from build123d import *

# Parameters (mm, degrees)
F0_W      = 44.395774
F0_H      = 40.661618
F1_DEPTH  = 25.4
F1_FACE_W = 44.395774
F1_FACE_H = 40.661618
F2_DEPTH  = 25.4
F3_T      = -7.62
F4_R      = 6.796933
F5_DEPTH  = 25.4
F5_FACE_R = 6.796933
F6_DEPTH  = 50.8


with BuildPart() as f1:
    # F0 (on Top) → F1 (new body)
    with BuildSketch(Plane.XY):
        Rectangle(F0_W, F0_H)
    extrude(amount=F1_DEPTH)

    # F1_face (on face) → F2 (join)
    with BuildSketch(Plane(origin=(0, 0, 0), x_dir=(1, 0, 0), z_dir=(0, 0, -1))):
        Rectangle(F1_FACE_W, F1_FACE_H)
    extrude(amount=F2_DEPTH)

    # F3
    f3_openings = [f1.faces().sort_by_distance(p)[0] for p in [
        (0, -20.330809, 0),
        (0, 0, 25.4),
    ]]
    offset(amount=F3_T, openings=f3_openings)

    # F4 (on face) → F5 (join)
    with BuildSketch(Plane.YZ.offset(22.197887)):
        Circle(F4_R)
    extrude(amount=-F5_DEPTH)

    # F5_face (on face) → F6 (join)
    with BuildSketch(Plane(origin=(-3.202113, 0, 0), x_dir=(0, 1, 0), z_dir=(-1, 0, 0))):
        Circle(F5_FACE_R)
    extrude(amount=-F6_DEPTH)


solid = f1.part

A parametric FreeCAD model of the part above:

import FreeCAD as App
import Part
import Sketcher
from FreeCAD import Vector
Q = App.Units.Quantity


def faces_at(feature, points):
    """Names of the faces that lie closest to the given points."""
    faces = feature.Shape.Faces
    near = lambda p: min(range(len(faces)), key=lambda i: faces[i].distToShape(Part.Vertex(*p))[0])
    return sorted({f"Face{near(p) + 1}" for p in points})

doc = App.newDocument("Part")
body = doc.addObject("PartDesign::Body", "Body")

# Sketch on XY plane
sketch1 = doc.addObject("Sketcher::SketchObject", "Sketch")
body.addObject(sketch1)
sketch1.AttachmentSupport = (doc.XY_Plane, [""])
sketch1.MapMode = "FlatFace"
sketch1.addGeometry([
    Part.LineSegment(Vector(-22, 20, 0), Vector(-22, -20, 0)),
    Part.LineSegment(Vector(-22, -20, 0), Vector(22, -20, 0)),
    Part.LineSegment(Vector(22, -20, 0), Vector(22, 20, 0)),
    Part.LineSegment(Vector(22, 20, 0), Vector(-22, 20, 0)),
], False)
sketch1.addConstraint([
    Sketcher.Constraint("Coincident", 0, 2, 1, 1),
    Sketcher.Constraint("Coincident", 1, 2, 2, 1),
    Sketcher.Constraint("Coincident", 2, 2, 3, 1),
    Sketcher.Constraint("Coincident", 3, 2, 0, 1),
    Sketcher.Constraint("Vertical", 0),
    Sketcher.Constraint("Horizontal", 1),
    Sketcher.Constraint("Vertical", 2),
    Sketcher.Constraint("Horizontal", 3),
    Sketcher.Constraint("Symmetric", 0, 2, 2, 2, -1, 1),
    Sketcher.Constraint("DistanceX", 1, 1, 1, 2, 44.395774),
    Sketcher.Constraint("DistanceY", 0, 2, 0, 1, 40.661618),
])
pad1 = doc.addObject("PartDesign::Pad", "Pad")
body.addObject(pad1)
pad1.Profile = sketch1
pad1.Length = Q("1 in")

# Sketch on XY plane
sketch2 = doc.addObject("Sketcher::SketchObject", "Sketch001")
body.addObject(sketch2)
sketch2.AttachmentSupport = (doc.XY_Plane, [""])
sketch2.MapMode = "FlatFace"
sketch2.addGeometry([
    Part.LineSegment(Vector(-22, -20, 0), Vector(-22, 20, 0)),
    Part.LineSegment(Vector(-22, 20, 0), Vector(22, 20, 0)),
    Part.LineSegment(Vector(22, 20, 0), Vector(22, -20, 0)),
    Part.LineSegment(Vector(22, -20, 0), Vector(-22, -20, 0)),
], False)
sketch2.addConstraint([
    Sketcher.Constraint("Coincident", 0, 2, 1, 1),
    Sketcher.Constraint("Coincident", 1, 2, 2, 1),
    Sketcher.Constraint("Coincident", 2, 2, 3, 1),
    Sketcher.Constraint("Coincident", 3, 2, 0, 1),
    Sketcher.Constraint("Vertical", 0),
    Sketcher.Constraint("Horizontal", 1),
    Sketcher.Constraint("Vertical", 2),
    Sketcher.Constraint("Horizontal", 3),
    Sketcher.Constraint("Symmetric", 0, 2, 2, 2, -1, 1),
    Sketcher.Constraint("DistanceX", 1, 1, 1, 2, 44.395774),
    Sketcher.Constraint("DistanceY", 0, 1, 0, 2, 40.661618),
])
pad2 = doc.addObject("PartDesign::Pad", "Pad001")
body.addObject(pad2)
pad2.Profile = sketch2
pad2.Length = Q("1 in")
pad2.Reversed = True
doc.recompute()

thickness = doc.addObject("PartDesign::Thickness", "Thickness")
body.addObject(thickness)
thickness.Base = (pad2, faces_at(pad2, [(0, -20.331, 0), (0, 0, 25.4)]))
thickness.Value = Q("0.3 in")
thickness.Reversed = True
thickness.Join = "Arc"

# Sketch on YZ plane
sketch3 = doc.addObject("Sketcher::SketchObject", "Sketch002")
body.addObject(sketch3)
sketch3.AttachmentSupport = (doc.YZ_Plane, [""])
sketch3.MapMode = "FlatFace"
sketch3.AttachmentOffset = App.Placement(Vector(0, 0, 22.197887), App.Rotation())
sketch3.addGeometry(Part.Circle(Vector(0, 0, 0), Vector(0, 0, 1), 7), False)
sketch3.addConstraint([
    Sketcher.Constraint("Coincident", 0, 3, -1, 1),
    Sketcher.Constraint("Diameter", 0, 13.593866),
])
pad3 = doc.addObject("PartDesign::Pad", "Pad002")
body.addObject(pad3)
pad3.Profile = sketch3
pad3.Length = Q("1 in")
pad3.Reversed = True

# Sketch on YZ plane
sketch4 = doc.addObject("Sketcher::SketchObject", "Sketch003")
body.addObject(sketch4)
sketch4.AttachmentSupport = (doc.YZ_Plane, [""])
sketch4.MapMode = "FlatFace"
sketch4.AttachmentOffset = App.Placement(Vector(0, 0, -3.202113), App.Rotation())
sketch4.addGeometry(Part.Circle(Vector(0, 0, 0), Vector(0, 0, 1), 7), False)
sketch4.addConstraint([
    Sketcher.Constraint("Coincident", 0, 3, -1, 1),
    Sketcher.Constraint("Diameter", 0, 13.593866),
])
pad4 = doc.addObject("PartDesign::Pad", "Pad003")
body.addObject(pad4)
pad4.Profile = sketch4
pad4.Length = Q("2 in")

doc.recompute()
